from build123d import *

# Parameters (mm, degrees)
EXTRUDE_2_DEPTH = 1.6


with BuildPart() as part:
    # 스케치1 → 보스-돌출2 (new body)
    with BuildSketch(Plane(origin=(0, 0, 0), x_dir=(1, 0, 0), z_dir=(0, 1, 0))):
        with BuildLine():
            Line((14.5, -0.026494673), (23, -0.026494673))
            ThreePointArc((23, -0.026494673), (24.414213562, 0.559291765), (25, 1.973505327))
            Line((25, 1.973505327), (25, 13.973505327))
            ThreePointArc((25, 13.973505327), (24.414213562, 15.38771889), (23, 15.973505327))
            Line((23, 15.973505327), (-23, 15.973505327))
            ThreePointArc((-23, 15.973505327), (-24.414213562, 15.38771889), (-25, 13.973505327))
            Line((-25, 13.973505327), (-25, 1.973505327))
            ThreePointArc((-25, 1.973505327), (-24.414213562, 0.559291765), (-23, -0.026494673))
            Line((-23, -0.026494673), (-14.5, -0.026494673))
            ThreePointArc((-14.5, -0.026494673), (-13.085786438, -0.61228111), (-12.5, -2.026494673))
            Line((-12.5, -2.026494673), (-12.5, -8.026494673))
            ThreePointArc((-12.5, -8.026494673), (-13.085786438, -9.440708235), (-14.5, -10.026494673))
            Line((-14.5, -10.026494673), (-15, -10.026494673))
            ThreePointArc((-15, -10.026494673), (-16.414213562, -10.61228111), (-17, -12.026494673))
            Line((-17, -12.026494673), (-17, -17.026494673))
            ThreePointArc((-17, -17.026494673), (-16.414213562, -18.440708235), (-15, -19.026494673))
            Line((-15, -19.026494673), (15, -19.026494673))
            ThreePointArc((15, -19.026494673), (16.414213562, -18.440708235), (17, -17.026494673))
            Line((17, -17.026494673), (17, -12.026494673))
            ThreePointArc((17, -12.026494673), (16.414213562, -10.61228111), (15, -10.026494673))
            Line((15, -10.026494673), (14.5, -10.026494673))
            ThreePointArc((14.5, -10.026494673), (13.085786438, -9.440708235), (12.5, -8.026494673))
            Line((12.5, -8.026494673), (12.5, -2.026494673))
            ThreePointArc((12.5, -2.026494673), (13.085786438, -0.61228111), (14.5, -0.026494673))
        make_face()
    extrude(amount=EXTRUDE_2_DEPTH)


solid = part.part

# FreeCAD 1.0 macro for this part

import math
import FreeCAD as App
import Part
import Sketcher

V = App.Vector
Q = App.Units.Quantity

doc = App.newDocument("Part")
params = doc.addObject("Spreadsheet::Sheet", "Params")
for row, (alias, value) in enumerate([
    ("sketch1_radius", "2 mm"),
    ("sketch1_width", "46 mm"),
    ("sketch1_width2", "30 mm"),
    ("sketch1_height", "12 mm"),
    ("sketch1_height2", "6 mm"),
    ("pad1_length", "1.6 mm"),
], start=1):
    params.set(f"A{row}", alias)
    params.set(f"B{row}", "=" + value)
    params.setAlias(f"B{row}", alias)

body = doc.addObject("PartDesign::Body", "Body")

# Sketch on XZ plane
sketch1 = doc.addObject("Sketcher::SketchObject", "Sketch")
body.addObject(sketch1)
sketch1.AttachmentSupport = (doc.XZ_Plane, [""])
sketch1.MapMode = "FlatFace"
sketch1.addGeometry([
    Part.LineSegment(V(14.5, 0, 0), V(23, 0, 0)),  # 0
    Part.ArcOfCircle(Part.Circle(V(23, -2, 0), V(0, 0, 1), 2), math.radians(0), math.radians(90)),  # 1
    Part.LineSegment(V(25, -2, 0), V(25, -14, 0)),  # 2
    Part.ArcOfCircle(Part.Circle(V(23, -14, 0), V(0, 0, 1), 2), math.radians(-90), math.radians(0)),  # 3
    Part.LineSegment(V(23, -16, 0), V(-23, -16, 0)),  # 4
    Part.ArcOfCircle(Part.Circle(V(-23, -14, 0), V(0, 0, 1), 2), math.radians(180), math.radians(270)),  # 5
    Part.LineSegment(V(-25, -14, 0), V(-25, -2, 0)),  # 6
    Part.ArcOfCircle(Part.Circle(V(-23, -2, 0), V(0, 0, 1), 2), math.radians(90), math.radians(180)),  # 7
    Part.LineSegment(V(-23, 0, 0), V(-14.5, 0, 0)),  # 8
    Part.ArcOfCircle(Part.Circle(V(-14.5, 2, 0), V(0, 0, 1), 2), math.radians(-90), math.radians(0)),  # 9
    Part.LineSegment(V(-12.5, 2, 0), V(-12.5, 8, 0)),  # 10
    Part.ArcOfCircle(Part.Circle(V(-14.5, 8, 0), V(0, 0, 1), 2), math.radians(0), math.radians(90)),  # 11
    Part.LineSegment(V(-14.5, 10, 0), V(-15, 10, 0)),  # 12
    Part.ArcOfCircle(Part.Circle(V(-15, 12, 0), V(0, 0, 1), 2), math.radians(180), math.radians(270)),  # 13
    Part.LineSegment(V(-17, 12, 0), V(-17, 17, 0)),  # 14
    Part.ArcOfCircle(Part.Circle(V(-15, 17, 0), V(0, 0, 1), 2), math.radians(90), math.radians(180)),  # 15
    Part.LineSegment(V(-15, 19, 0), V(15, 19, 0)),  # 16
    Part.ArcOfCircle(Part.Circle(V(15, 17, 0), V(0, 0, 1), 2), math.radians(0), math.radians(90)),  # 17
    Part.LineSegment(V(17, 17, 0), V(17, 12, 0)),  # 18
    Part.ArcOfCircle(Part.Circle(V(15, 12, 0), V(0, 0, 1), 2), math.radians(-90), math.radians(0)),  # 19
    Part.LineSegment(V(15, 10, 0), V(14.5, 10, 0)),  # 20
    Part.ArcOfCircle(Part.Circle(V(14.5, 8, 0), V(0, 0, 1), 2), math.radians(90), math.radians(180)),  # 21
    Part.LineSegment(V(12.5, 8, 0), V(12.5, 2, 0)),  # 22
    Part.ArcOfCircle(Part.Circle(V(14.5, 2, 0), V(0, 0, 1), 2), math.radians(180), math.radians(270)),  # 23
], False)
sketch1.addConstraint([
    Sketcher.Constraint("Tangent", 0, 2, 1, 2),
    Sketcher.Constraint("Tangent", 1, 1, 2, 1),
    Sketcher.Constraint("Tangent", 2, 2, 3, 2),
    Sketcher.Constraint("Tangent", 3, 1, 4, 1),
    Sketcher.Constraint("Tangent", 4, 2, 5, 2),
    Sketcher.Constraint("Tangent", 5, 1, 6, 1),
    Sketcher.Constraint("Tangent", 6, 2, 7, 2),
    Sketcher.Constraint("Tangent", 7, 1, 8, 1),
    Sketcher.Constraint("Tangent", 8, 2, 9, 1),
    Sketcher.Constraint("Tangent", 9, 2, 10, 1),
    Sketcher.Constraint("Tangent", 10, 2, 11, 1),
    Sketcher.Constraint("Tangent", 11, 2, 12, 1),
    Sketcher.Constraint("Tangent", 12, 2, 13, 2),
    Sketcher.Constraint("Tangent", 13, 1, 14, 1),
    Sketcher.Constraint("Tangent", 14, 2, 15, 2),
    Sketcher.Constraint("Tangent", 15, 1, 16, 1),
    Sketcher.Constraint("Tangent", 16, 2, 17, 2),
    Sketcher.Constraint("Tangent", 17, 1, 18, 1),
    Sketcher.Constraint("Tangent", 18, 2, 19, 2),
    Sketcher.Constraint("Tangent", 19, 1, 20, 1),
    Sketcher.Constraint("Tangent", 20, 2, 21, 1),
    Sketcher.Constraint("Tangent", 21, 2, 22, 1),
    Sketcher.Constraint("Tangent", 22, 2, 23, 1),
    Sketcher.Constraint("Tangent", 23, 2, 0, 1),
    Sketcher.Constraint("Horizontal", 0),
    Sketcher.Constraint("Vertical", 2),
    Sketcher.Constraint("Horizontal", 4),
    Sketcher.Constraint("Vertical", 6),
    Sketcher.Constraint("Horizontal", 8),
    Sketcher.Constraint("Vertical", 10),
    Sketcher.Constraint("Horizontal", 12),
    Sketcher.Constraint("Vertical", 14),
    Sketcher.Constraint("Horizontal", 16),
    Sketcher.Constraint("Vertical", 18),
    Sketcher.Constraint("Horizontal", 20),
    Sketcher.Constraint("Vertical", 22),
    Sketcher.Constraint("Equal", 1, 3),
    Sketcher.Constraint("Equal", 3, 5),
    Sketcher.Constraint("Equal", 5, 7),
    Sketcher.Constraint("Equal", 7, 9),
    Sketcher.Constraint("Equal", 9, 11),
    Sketcher.Constraint("Equal", 11, 13),
    Sketcher.Constraint("Equal", 13, 15),
    Sketcher.Constraint("Equal", 15, 17),
    Sketcher.Constraint("Equal", 17, 19),
    Sketcher.Constraint("Equal", 19, 21),
    Sketcher.Constraint("Equal", 21, 23),
    Sketcher.Constraint("Symmetric", 1, 3, 7, 3, -2),
    Sketcher.Constraint("Symmetric", 13, 3, 19, 3, -2),
    Sketcher.Constraint("Equal", 0, 8),
    Sketcher.Constraint("Radius", 1, Q("2 mm")),
    Sketcher.Constraint("DistanceX", 4, 2, 4, 1, Q("46 mm")),
    Sketcher.Constraint("DistanceX", 16, 1, 16, 2, Q("30 mm")),
    Sketcher.Constraint("DistanceY", 2, 2, 2, 1, Q("12 mm")),
    Sketcher.Constraint("DistanceY", 10, 1, 10, 2, Q("6 mm")),
    Sketcher.Constraint("DistanceY", 14, 1, 14, 2, Q("5 mm")),
    Sketcher.Constraint("DistanceX", 0, 1, 0, 2, Q("8.5 mm")),
    Sketcher.Constraint("DistanceY", 1, 3, -1, 1, Q("1.973505 mm")),
])
sketch1.setExpression("Constraints[50]", "Params.sketch1_radius")
sketch1.setExpression("Constraints[51]", "Params.sketch1_width")
sketch1.setExpression("Constraints[52]", "Params.sketch1_width2")
sketch1.setExpression("Constraints[53]", "Params.sketch1_height")
sketch1.setExpression("Constraints[54]", "Params.sketch1_height2")
pad1 = doc.addObject("PartDesign::Pad", "Pad")
body.addObject(pad1)
pad1.Profile = sketch1
pad1.setExpression("Length", "Params.pad1_length")
pad1.Reversed = True

doc.recompute()
